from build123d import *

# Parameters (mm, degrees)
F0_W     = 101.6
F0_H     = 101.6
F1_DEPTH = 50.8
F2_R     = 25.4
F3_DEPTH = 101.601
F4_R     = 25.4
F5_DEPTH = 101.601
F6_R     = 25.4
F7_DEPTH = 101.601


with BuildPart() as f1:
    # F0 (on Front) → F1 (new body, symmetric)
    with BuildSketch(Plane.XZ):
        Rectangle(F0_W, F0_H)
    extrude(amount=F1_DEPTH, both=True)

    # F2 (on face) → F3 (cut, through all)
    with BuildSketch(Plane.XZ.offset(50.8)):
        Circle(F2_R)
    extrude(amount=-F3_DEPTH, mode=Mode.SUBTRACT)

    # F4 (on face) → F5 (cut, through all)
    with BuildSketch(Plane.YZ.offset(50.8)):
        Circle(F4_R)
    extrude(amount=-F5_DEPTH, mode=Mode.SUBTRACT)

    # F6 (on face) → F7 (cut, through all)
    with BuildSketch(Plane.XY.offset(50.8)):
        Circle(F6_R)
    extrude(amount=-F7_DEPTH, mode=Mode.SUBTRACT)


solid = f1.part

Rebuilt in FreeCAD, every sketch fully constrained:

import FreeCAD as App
import Part
import Sketcher
Q = App.Units.Quantity

doc = App.newDocument("Part")
body = doc.addObject("PartDesign::Body", "Body")

# Sketch on XZ plane
sketch1 = doc.addObject("Sketcher::SketchObject", "Sketch")
body.addObject(sketch1)
sketch1.AttachmentSupport = (doc.XZ_Plane, [""])
sketch1.MapMode = "FlatFace"
sketch1.addGeometry(Part.LineSegment(App.Vector(-50.8, 50.8, 0), App.Vector(-50.8, -50.8, 0)), False)
sketch1.addGeometry(Part.LineSegment(App.Vector(-50.8, -50.8, 0), App.Vector(50.8, -50.8, 0)), False)
sketch1.addGeometry(Part.LineSegment(App.Vector(50.8, -50.8, 0), App.Vector(50.8, 50.8, 0)), False)
sketch1.addGeometry(Part.LineSegment(App.Vector(50.8, 50.8, 0), App.Vector(-50.8, 50.8, 0)), False)
sketch1.addConstraint(Sketcher.Constraint("Coincident", 0, 2, 1, 1))
sketch1.addConstraint(Sketcher.Constraint("Coincident", 1, 2, 2, 1))
sketch1.addConstraint(Sketcher.Constraint("Coincident", 2, 2, 3, 1))
sketch1.addConstraint(Sketcher.Constraint("Coincident", 3, 2, 0, 1))
sketch1.addConstraint(Sketcher.Constraint("Vertical", 0))
sketch1.addConstraint(Sketcher.Constraint("Horizontal", 1))
sketch1.addConstraint(Sketcher.Constraint("Vertical", 2))
sketch1.addConstraint(Sketcher.Constraint("Horizontal", 3))
sketch1.addConstraint(Sketcher.Constraint("Symmetric", 0, 2, 2, 2, -1, 1))
sketch1.addConstraint(Sketcher.Constraint("Equal", 3, 0))
sketch1.addConstraint(Sketcher.Constraint("DistanceX", 1, 1, 1, 2, Q("4 in")))
pad1 = doc.addObject("PartDesign::Pad", "Pad")
body.addObject(pad1)
pad1.Profile = sketch1
pad1.Length = Q("4 in")
pad1.Midplane = True

# Sketch on XZ plane
sketch2 = doc.addObject("Sketcher::SketchObject", "Sketch001")
body.addObject(sketch2)
sketch2.AttachmentSupport = (doc.XZ_Plane, [""])
sketch2.MapMode = "FlatFace"
sketch2.AttachmentOffset = App.Placement(App.Vector(0, 0, 2 * 25.4), App.Rotation())
sketch2.addGeometry(Part.Circle(App.Vector(0, 0, 0), App.Vector(0, 0, 1), 25.4), False)
sketch2.addConstraint(Sketcher.Constraint("Coincident", 0, 3, -1, 1))
sketch2.addConstraint(Sketcher.Constraint("Diameter", 0, Q("2 in")))
pocket1 = doc.addObject("PartDesign::Pocket", "Pocket")
body.addObject(pocket1)
pocket1.Profile = sketch2
pocket1.Type = "ThroughAll"

# Sketch on YZ plane
sketch3 = doc.addObject("Sketcher::SketchObject", "Sketch002")
body.addObject(sketch3)
sketch3.AttachmentSupport = (doc.YZ_Plane, [""])
sketch3.MapMode = "FlatFace"
sketch3.AttachmentOffset = App.Placement(App.Vector(0, 0, 2 * 25.4), App.Rotation())
sketch3.addGeometry(Part.Circle(App.Vector(0, 0, 0), App.Vector(0, 0, 1), 25.4), False)
sketch3.addConstraint(Sketcher.Constraint("Coincident", 0, 3, -1, 1))
sketch3.addConstraint(Sketcher.Constraint("Diameter", 0, Q("2 in")))
pocket2 = doc.addObject("PartDesign::Pocket", "Pocket001")
body.addObject(pocket2)
pocket2.Profile = sketch3
pocket2.Type = "ThroughAll"

# Sketch on XY plane
sketch4 = doc.addObject("Sketcher::SketchObject", "Sketch003")
body.addObject(sketch4)
sketch4.AttachmentSupport = (doc.XY_Plane, [""])
sketch4.MapMode = "FlatFace"
sketch4.AttachmentOffset = App.Placement(App.Vector(0, 0, 2 * 25.4), App.Rotation())
sketch4.addGeometry(Part.Circle(App.Vector(0, 0, 0), App.Vector(0, 0, 1), 25.4), False)
sketch4.addConstraint(Sketcher.Constraint("Coincident", 0, 3, -1, 1))
sketch4.addConstraint(Sketcher.Constraint("Diameter", 0, Q("2 in")))
pocket3 = doc.addObject("PartDesign::Pocket", "Pocket002")
body.addObject(pocket3)
pocket3.Profile = sketch4
pocket3.Type = "ThroughAll"

doc.recompute()
